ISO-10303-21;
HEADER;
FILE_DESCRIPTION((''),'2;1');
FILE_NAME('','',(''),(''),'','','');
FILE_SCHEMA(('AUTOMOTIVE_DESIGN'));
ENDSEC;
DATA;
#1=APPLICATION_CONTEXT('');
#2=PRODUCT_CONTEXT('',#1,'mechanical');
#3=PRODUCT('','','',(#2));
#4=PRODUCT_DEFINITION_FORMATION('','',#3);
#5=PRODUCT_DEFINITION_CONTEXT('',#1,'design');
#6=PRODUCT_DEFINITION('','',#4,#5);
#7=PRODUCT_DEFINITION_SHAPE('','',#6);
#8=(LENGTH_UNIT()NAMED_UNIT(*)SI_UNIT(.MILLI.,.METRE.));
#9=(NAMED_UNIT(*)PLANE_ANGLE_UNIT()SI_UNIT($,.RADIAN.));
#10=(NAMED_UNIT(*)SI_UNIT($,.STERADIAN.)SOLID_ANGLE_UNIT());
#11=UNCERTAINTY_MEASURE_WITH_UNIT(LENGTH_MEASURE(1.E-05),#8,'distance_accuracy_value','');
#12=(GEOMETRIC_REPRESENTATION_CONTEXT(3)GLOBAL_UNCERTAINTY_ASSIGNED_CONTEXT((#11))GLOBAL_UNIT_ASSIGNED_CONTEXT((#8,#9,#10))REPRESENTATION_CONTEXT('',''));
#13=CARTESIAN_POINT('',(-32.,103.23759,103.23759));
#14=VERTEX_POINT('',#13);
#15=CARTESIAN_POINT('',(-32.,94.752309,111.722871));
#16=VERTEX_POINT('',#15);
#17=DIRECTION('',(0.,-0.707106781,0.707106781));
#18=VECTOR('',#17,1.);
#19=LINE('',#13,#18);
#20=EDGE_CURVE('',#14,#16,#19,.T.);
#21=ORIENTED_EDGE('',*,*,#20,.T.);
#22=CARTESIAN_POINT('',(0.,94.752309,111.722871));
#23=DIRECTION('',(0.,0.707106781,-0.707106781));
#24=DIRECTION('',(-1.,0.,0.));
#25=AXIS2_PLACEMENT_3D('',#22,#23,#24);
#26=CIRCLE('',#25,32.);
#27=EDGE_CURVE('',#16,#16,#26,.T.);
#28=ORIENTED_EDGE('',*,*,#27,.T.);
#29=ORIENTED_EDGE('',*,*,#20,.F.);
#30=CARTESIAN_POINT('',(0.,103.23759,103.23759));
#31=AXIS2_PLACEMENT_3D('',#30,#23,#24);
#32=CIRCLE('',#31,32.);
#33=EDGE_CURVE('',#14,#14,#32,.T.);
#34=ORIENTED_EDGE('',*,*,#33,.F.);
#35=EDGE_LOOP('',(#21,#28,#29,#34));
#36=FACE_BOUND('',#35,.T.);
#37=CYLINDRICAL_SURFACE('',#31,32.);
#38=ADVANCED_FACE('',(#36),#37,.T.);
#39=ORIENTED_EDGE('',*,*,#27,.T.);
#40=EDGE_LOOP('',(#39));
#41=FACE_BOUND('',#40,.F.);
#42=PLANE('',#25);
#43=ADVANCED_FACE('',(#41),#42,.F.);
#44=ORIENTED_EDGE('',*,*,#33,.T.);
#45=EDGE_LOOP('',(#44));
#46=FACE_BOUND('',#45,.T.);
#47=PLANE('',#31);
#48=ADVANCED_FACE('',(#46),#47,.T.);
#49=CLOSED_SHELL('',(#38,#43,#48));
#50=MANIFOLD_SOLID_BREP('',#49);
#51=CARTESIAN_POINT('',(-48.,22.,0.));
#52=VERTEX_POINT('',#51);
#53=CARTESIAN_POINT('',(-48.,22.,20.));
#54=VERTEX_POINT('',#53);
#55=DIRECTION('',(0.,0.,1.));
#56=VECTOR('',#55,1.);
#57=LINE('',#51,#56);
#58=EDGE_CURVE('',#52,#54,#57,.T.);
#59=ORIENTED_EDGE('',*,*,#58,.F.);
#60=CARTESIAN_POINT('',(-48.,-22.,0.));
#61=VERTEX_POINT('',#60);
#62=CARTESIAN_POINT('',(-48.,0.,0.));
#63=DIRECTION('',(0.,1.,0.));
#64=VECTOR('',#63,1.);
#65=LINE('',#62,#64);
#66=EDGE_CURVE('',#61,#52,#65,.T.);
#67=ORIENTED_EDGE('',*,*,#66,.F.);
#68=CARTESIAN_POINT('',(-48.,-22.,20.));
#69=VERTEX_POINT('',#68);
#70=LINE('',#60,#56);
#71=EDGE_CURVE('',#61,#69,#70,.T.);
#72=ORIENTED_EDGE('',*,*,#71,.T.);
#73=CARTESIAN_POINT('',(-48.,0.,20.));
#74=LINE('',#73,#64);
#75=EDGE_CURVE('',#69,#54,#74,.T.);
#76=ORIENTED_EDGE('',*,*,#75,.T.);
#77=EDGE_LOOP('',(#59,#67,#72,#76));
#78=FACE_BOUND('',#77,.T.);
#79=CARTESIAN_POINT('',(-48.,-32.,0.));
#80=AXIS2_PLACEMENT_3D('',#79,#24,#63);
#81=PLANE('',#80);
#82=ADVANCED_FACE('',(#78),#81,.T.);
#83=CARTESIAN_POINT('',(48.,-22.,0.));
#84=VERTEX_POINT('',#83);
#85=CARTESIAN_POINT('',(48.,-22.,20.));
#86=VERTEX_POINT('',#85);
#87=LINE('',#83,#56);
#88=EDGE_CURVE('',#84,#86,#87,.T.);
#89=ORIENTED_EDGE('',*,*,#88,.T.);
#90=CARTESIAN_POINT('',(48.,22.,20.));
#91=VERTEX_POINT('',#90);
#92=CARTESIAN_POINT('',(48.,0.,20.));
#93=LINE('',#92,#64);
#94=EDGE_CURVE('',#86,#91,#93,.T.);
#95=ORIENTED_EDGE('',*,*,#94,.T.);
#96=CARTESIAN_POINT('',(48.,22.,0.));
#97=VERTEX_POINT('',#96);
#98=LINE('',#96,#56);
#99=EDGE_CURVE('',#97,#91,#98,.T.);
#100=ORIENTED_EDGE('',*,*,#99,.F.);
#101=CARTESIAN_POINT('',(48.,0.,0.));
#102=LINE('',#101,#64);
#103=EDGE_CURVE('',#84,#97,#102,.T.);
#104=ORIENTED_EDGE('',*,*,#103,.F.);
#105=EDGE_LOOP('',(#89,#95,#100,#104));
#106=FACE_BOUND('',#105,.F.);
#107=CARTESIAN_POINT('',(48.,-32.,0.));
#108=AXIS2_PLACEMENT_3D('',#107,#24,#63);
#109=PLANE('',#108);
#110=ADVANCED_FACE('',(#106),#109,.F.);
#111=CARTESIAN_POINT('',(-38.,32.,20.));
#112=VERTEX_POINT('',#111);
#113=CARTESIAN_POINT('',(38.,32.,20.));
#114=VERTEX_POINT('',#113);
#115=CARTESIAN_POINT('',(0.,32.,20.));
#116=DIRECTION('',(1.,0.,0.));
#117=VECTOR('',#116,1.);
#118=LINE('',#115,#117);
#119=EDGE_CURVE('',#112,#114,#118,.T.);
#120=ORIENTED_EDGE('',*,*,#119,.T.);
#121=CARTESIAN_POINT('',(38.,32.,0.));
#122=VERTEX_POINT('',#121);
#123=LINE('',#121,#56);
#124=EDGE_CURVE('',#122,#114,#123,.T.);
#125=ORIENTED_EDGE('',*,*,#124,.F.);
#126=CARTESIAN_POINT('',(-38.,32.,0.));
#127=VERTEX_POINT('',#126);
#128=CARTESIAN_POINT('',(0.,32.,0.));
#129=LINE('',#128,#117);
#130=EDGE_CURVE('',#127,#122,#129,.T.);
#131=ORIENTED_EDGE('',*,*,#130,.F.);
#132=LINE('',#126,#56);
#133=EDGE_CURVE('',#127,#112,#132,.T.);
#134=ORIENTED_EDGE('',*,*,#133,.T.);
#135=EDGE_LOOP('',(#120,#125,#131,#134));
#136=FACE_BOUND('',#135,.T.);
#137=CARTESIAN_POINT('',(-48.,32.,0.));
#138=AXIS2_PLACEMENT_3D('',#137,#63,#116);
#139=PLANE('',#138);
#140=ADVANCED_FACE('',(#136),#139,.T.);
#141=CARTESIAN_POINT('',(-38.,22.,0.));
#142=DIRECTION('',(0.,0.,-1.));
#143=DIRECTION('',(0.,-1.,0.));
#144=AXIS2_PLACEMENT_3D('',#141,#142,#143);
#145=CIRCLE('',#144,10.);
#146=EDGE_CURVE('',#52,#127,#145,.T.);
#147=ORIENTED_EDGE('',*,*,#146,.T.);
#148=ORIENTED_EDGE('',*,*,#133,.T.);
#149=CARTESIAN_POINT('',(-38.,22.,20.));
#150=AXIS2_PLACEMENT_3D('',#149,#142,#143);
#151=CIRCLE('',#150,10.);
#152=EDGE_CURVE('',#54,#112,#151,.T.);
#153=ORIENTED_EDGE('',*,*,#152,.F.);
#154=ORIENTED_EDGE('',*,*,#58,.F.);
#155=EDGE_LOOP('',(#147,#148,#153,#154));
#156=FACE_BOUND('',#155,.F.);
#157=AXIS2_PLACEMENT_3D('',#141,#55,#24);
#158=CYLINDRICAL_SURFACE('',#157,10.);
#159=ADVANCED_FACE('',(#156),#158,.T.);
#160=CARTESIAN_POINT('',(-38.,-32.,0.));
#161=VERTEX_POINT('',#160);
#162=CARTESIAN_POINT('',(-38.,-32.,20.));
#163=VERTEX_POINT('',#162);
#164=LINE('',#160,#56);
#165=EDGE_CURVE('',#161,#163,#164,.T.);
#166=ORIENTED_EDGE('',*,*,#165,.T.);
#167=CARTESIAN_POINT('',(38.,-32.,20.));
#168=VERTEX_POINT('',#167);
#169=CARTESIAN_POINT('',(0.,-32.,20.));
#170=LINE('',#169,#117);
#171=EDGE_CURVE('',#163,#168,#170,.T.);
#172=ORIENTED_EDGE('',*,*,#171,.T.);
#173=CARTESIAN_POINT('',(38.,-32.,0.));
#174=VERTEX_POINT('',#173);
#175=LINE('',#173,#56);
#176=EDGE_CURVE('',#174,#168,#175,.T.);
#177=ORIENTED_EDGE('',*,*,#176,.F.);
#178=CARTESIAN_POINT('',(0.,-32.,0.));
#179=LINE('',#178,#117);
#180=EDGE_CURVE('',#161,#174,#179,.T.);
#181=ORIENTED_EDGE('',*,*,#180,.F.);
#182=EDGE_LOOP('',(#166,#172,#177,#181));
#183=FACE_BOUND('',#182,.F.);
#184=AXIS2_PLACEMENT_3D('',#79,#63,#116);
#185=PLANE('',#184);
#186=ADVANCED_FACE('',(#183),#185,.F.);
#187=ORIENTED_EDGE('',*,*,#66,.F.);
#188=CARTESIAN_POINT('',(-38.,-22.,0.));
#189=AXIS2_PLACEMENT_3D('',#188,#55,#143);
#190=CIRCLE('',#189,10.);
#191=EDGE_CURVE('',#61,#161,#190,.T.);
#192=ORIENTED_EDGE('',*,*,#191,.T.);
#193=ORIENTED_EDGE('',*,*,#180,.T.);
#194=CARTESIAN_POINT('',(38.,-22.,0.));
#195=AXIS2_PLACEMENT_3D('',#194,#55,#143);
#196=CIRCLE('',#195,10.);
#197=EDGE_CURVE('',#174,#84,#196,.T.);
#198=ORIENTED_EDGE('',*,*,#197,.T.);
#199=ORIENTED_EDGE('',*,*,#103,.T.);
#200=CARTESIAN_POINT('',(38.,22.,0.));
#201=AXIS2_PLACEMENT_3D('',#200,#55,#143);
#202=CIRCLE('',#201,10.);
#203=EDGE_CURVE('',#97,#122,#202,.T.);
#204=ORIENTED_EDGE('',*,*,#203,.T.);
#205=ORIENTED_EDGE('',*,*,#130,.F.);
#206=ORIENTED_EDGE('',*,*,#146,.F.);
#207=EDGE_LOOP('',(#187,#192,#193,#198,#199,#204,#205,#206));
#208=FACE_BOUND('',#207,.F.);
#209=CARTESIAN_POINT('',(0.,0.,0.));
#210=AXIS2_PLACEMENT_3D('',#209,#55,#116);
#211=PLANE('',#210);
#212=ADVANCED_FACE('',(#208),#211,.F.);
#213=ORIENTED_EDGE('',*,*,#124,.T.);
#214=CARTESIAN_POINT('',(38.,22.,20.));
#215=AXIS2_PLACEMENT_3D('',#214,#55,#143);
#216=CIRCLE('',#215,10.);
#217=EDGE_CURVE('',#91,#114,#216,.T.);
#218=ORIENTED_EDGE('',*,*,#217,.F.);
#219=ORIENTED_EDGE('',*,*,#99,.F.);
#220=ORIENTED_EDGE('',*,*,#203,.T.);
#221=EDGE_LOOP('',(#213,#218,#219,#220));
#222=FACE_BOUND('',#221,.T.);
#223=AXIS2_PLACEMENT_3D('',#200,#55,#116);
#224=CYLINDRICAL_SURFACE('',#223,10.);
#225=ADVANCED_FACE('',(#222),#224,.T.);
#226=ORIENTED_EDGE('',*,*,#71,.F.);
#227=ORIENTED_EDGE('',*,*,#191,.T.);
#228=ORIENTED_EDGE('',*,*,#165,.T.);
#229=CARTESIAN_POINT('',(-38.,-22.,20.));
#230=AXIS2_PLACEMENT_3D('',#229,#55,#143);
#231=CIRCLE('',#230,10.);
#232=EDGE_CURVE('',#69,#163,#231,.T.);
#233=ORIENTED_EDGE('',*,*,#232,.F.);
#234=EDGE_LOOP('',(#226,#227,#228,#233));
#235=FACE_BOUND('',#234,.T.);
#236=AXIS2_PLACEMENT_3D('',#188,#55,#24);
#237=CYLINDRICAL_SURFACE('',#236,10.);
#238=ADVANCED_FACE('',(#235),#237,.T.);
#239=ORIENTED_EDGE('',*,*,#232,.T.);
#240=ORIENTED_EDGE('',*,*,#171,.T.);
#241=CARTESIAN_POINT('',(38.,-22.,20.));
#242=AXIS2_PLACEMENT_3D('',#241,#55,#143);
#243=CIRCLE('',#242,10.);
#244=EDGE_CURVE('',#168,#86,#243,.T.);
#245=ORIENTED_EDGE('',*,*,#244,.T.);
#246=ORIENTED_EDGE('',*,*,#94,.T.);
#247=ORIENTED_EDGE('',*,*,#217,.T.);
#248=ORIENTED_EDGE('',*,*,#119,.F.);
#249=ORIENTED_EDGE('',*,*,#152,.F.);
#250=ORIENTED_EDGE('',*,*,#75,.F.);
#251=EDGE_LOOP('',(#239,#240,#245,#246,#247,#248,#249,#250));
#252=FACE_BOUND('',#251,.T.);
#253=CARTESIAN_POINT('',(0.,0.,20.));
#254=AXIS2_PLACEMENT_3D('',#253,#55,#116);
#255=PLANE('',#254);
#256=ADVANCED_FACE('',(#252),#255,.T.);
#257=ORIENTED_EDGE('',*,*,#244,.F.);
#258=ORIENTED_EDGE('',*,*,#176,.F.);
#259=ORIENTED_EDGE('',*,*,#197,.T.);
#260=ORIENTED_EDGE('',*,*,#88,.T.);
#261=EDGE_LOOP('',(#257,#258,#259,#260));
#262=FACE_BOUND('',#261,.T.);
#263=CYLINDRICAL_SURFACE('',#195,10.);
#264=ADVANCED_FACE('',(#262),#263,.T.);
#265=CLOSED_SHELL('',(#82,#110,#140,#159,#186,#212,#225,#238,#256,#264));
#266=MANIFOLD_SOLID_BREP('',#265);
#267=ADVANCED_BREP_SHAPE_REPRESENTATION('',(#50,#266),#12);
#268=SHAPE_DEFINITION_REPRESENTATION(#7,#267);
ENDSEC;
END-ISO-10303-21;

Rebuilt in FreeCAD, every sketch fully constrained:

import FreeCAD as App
import Part
import Sketcher


def edges_at(feature, points):
    """Names of the edges that pass closest to the given points."""
    edges = feature.Shape.Edges
    near = lambda p: min(range(len(edges)), key=lambda i: edges[i].distToShape(Part.Vertex(*p))[0])
    return sorted({f"Edge{near(p) + 1}" for p in points})


def add_polygon(sketch, points):
    """Adds a closed chain of lines whose ends are joined by coincident constraints."""
    first, n = sketch.GeometryCount, len(points)
    for a, b in zip(points, points[1:] + points[:1]):
        sketch.addGeometry(Part.LineSegment(App.Vector(*a, 0), App.Vector(*b, 0)), False)
    for i in range(n):
        sketch.addConstraint(Sketcher.Constraint("Coincident", first + i, 2, first + (i + 1) % n, 1))

doc = App.newDocument("Part")
body = doc.addObject("PartDesign::Body", "Body")

# Sketch on XY plane
sketch1 = doc.addObject("Sketcher::SketchObject", "Sketch")
body.addObject(sketch1)
sketch1.AttachmentSupport = (doc.XY_Plane, [""])
sketch1.MapMode = "FlatFace"
add_polygon(sketch1, [(-48, 32), (-48, -32), (48, -32), (48, 32)])  # lines 0-3
sketch1.addConstraint(Sketcher.Constraint("Vertical", 0))
sketch1.addConstraint(Sketcher.Constraint("Horizontal", 1))
sketch1.addConstraint(Sketcher.Constraint("Vertical", 2))
sketch1.addConstraint(Sketcher.Constraint("Horizontal", 3))
sketch1.addConstraint(Sketcher.Constraint("Symmetric", 0, 2, 2, 2, -1, 1))
sketch1.addConstraint(Sketcher.Constraint("DistanceX", 1, 1, 1, 2, 96.0))
sketch1.addConstraint(Sketcher.Constraint("DistanceY", 0, 2, 0, 1, 64.0))
pad1 = doc.addObject("PartDesign::Pad", "Pad")
body.addObject(pad1)
pad1.Profile = sketch1
pad1.Length = 20
doc.recompute()

fillet = doc.addObject("PartDesign::Fillet", "Fillet")
body.addObject(fillet)
fillet.Base = (pad1, edges_at(pad1, [
    (-48, -32, 10),
    (48, -32, 10),
    (48, 32, 10),
    (-48, 32, 10),
]))
fillet.Radius = 10
body2 = doc.addObject("PartDesign::Body", "Body001")

# Sketch on an angled plane
sketch2 = doc.addObject("Sketcher::SketchObject", "Sketch001")
body2.addObject(sketch2)
sketch2.Placement = App.Placement(App.Vector(0, 0, 0), App.Rotation(App.Vector(-1, 0, 0), App.Vector(0, 0.707106781, 0.707106781), App.Vector(0, 0.707106781, -0.707106781), "ZXY"))
sketch2.addGeometry(Part.Circle(App.Vector(0, 146, 0), App.Vector(0, 0, 1), 32), False)
sketch2.addConstraint(Sketcher.Constraint("PointOnObject", 0, 3, -2))
sketch2.addConstraint(Sketcher.Constraint("Diameter", 0, 64.0))
sketch2.addConstraint(Sketcher.Constraint("DistanceY", -1, 1, 0, 3, 146.0))
pad2 = doc.addObject("PartDesign::Pad", "Pad001")
body2.addObject(pad2)
pad2.Profile = sketch2
pad2.Length = 12
pad2.Reversed = True

doc.recompute()
